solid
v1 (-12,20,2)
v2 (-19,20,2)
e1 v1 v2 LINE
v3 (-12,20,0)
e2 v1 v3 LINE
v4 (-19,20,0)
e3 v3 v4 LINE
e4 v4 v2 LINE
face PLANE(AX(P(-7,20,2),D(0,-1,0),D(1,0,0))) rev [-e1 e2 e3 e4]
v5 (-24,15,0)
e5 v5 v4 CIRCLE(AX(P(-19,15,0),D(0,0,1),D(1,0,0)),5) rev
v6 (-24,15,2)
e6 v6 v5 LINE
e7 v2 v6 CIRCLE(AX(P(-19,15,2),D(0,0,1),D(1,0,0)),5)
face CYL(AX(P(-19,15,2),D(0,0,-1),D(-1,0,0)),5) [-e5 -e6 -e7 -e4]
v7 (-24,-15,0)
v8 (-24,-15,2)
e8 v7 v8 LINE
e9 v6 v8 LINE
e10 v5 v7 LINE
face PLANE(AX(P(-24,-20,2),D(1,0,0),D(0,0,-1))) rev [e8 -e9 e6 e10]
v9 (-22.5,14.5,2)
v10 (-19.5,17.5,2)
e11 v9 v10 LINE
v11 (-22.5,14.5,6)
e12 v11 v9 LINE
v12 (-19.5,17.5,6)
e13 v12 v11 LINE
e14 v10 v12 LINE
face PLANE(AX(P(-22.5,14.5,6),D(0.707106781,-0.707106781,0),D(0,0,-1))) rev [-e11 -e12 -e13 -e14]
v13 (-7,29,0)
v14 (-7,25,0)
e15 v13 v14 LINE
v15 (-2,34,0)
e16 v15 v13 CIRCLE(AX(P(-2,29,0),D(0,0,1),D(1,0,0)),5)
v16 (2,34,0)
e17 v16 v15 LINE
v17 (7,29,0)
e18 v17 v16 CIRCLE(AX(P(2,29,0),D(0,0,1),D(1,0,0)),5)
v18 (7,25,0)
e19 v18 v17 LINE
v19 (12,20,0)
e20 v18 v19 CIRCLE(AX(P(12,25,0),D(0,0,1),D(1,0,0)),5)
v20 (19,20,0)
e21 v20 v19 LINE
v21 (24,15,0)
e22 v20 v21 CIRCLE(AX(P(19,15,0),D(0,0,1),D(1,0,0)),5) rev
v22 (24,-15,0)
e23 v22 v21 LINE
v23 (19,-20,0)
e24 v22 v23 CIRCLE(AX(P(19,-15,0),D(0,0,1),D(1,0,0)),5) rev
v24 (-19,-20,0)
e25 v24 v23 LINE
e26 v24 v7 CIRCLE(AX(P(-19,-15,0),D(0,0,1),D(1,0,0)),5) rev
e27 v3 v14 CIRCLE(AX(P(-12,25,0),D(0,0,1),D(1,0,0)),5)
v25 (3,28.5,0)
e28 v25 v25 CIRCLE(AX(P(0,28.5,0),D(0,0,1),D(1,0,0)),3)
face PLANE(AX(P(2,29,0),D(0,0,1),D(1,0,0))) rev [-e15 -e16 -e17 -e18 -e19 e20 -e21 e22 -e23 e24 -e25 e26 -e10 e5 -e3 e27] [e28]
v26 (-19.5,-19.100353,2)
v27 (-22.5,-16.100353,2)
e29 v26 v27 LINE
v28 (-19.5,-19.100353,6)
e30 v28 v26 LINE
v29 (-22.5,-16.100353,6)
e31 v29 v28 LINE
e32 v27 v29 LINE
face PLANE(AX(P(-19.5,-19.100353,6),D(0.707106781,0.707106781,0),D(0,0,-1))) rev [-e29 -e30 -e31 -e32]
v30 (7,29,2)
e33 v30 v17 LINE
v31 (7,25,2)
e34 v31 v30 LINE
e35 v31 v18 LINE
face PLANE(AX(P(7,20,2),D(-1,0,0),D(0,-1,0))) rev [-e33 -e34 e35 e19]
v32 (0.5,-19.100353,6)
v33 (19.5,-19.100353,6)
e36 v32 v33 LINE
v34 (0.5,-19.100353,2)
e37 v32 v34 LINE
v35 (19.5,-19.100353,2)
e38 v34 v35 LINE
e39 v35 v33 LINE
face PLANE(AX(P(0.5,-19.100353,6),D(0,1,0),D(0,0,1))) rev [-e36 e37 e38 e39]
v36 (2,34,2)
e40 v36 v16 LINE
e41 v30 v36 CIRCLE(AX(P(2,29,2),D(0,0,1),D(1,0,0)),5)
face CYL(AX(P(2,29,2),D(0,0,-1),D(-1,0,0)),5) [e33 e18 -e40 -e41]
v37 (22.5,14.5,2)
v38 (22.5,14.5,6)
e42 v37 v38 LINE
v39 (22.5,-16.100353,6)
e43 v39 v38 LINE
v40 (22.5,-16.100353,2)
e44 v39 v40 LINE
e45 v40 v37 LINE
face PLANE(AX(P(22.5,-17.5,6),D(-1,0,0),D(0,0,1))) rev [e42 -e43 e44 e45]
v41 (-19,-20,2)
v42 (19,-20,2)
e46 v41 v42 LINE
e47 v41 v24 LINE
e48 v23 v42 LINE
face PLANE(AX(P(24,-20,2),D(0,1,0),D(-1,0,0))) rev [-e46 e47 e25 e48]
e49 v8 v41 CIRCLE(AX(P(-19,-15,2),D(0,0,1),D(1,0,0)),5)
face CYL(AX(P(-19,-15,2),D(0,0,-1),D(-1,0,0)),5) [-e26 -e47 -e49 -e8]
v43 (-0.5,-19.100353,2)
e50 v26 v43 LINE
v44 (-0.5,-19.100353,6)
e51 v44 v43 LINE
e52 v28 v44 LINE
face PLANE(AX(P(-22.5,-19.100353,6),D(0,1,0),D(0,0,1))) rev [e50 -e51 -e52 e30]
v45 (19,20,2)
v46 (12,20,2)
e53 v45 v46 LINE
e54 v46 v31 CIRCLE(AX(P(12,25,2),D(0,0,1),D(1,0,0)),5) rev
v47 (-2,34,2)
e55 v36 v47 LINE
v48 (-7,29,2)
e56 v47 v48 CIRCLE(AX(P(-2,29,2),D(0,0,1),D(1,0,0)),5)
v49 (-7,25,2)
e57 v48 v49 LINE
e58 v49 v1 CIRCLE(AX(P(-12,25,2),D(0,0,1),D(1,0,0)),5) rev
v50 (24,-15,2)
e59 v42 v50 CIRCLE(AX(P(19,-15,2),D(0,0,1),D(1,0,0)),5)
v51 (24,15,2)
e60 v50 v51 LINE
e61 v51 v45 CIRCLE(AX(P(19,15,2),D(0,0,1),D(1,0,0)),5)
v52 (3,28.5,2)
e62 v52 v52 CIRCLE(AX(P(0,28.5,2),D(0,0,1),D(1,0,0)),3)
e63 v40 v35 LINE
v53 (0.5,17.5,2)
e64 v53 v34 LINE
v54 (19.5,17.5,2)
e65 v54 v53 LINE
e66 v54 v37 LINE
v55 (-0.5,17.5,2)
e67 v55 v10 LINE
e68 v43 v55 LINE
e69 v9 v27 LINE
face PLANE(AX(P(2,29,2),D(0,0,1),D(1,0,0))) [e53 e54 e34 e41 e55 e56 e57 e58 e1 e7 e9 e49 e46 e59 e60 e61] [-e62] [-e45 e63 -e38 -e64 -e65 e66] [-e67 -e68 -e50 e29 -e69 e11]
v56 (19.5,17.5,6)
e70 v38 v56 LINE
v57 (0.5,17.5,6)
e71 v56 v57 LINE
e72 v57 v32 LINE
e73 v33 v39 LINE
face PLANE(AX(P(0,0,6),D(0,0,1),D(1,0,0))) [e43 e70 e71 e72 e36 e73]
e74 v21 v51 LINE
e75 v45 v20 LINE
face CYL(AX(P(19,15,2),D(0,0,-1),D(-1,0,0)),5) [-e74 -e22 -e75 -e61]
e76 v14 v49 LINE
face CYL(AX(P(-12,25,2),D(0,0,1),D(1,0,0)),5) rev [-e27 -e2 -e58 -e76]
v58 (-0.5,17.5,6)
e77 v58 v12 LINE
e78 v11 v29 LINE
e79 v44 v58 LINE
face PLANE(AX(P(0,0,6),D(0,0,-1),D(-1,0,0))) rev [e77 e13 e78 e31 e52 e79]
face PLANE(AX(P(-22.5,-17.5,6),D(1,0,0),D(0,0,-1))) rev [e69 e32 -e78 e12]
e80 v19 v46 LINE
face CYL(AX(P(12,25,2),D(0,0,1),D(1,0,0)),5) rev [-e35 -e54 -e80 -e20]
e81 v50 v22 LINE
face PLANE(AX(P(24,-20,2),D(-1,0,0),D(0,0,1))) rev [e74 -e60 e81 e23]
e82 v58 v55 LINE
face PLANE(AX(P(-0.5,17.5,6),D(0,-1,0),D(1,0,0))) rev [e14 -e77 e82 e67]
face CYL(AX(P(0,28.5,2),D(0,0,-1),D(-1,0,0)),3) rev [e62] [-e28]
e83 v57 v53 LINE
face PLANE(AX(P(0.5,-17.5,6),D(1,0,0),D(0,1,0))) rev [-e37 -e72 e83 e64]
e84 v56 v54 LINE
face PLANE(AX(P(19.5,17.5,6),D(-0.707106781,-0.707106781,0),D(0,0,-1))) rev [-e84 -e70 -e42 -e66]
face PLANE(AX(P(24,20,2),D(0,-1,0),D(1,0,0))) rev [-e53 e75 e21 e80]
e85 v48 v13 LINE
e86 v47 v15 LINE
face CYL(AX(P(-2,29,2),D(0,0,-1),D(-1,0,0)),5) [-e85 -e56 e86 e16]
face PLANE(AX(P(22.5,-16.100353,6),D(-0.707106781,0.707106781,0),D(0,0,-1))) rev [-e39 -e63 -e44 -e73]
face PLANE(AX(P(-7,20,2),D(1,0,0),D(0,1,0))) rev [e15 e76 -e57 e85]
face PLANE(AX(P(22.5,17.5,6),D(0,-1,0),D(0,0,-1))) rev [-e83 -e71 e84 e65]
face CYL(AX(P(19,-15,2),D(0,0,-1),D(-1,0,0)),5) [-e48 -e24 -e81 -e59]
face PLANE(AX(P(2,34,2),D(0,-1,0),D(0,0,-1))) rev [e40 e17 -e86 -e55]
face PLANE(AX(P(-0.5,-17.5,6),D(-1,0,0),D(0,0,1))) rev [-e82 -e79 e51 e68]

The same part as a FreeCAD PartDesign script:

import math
import FreeCAD as App
import Part
import Sketcher

V = App.Vector
Q = App.Units.Quantity


def edges_at(feature, points):
    """Names of the edges that pass closest to the given points."""
    edges = feature.Shape.Edges
    near = lambda p: min(range(len(edges)), key=lambda i: edges[i].distToShape(Part.Vertex(*p))[0])
    return sorted({f"Edge{near(p) + 1}" for p in points})


def add_polygon(sketch, points):
    """Adds a closed chain of lines whose ends are joined by coincident constraints."""
    first, n = sketch.GeometryCount, len(points)
    for a, b in zip(points, points[1:] + points[:1]):
        sketch.addGeometry(Part.LineSegment(App.Vector(*a, 0), App.Vector(*b, 0)), False)
    for i in range(n):
        sketch.addConstraint(Sketcher.Constraint("Coincident", first + i, 2, first + (i + 1) % n, 1))

doc = App.newDocument("Part")
body = doc.addObject("PartDesign::Body", "Body")

# Sketch on XY plane
sketch1 = doc.addObject("Sketcher::SketchObject", "Sketch")
body.addObject(sketch1)
sketch1.AttachmentSupport = (doc.XY_Plane, [""])
sketch1.MapMode = "FlatFace"
sketch1.addGeometry([
    Part.LineSegment(V(-24, -20, 0), V(24, -20, 0)),  # 0
    Part.LineSegment(V(24, -20, 0), V(24, 20, 0)),  # 1
    Part.LineSegment(V(24, 20, 0), V(7, 20, 0)),  # 2
    Part.LineSegment(V(7, 20, 0), V(7, 29, 0)),  # 3
    Part.ArcOfCircle(Part.Circle(V(2, 29, 0), V(0, 0, 1), 5), math.radians(0), math.radians(90)),  # 4
    Part.LineSegment(V(2, 34, 0), V(-2, 34, 0)),  # 5
    Part.ArcOfCircle(Part.Circle(V(-2, 29, 0), V(0, 0, 1), 5), math.radians(90), math.radians(180)),  # 6
    Part.LineSegment(V(-7, 29, 0), V(-7, 20, 0)),  # 7
    Part.LineSegment(V(-7, 20, 0), V(-24, 20, 0)),  # 8
    Part.LineSegment(V(-24, 20, 0), V(-24, -20, 0)),  # 9
    Part.Circle(V(0, 28.5, 0), V(0, 0, 1), 3),  # 10
], False)
sketch1.addConstraint([
    Sketcher.Constraint("Coincident", 0, 2, 1, 1),
    Sketcher.Constraint("Coincident", 1, 2, 2, 1),
    Sketcher.Constraint("Coincident", 2, 2, 3, 1),
    Sketcher.Constraint("Tangent", 3, 2, 4, 1),
    Sketcher.Constraint("Tangent", 4, 2, 5, 1),
    Sketcher.Constraint("Tangent", 5, 2, 6, 1),
    Sketcher.Constraint("Tangent", 6, 2, 7, 1),
    Sketcher.Constraint("Coincident", 7, 2, 8, 1),
    Sketcher.Constraint("Coincident", 8, 2, 9, 1),
    Sketcher.Constraint("Coincident", 9, 2, 0, 1),
    Sketcher.Constraint("Horizontal", 0),
    Sketcher.Constraint("Vertical", 1),
    Sketcher.Constraint("Horizontal", 2),
    Sketcher.Constraint("Vertical", 3),
    Sketcher.Constraint("Horizontal", 5),
    Sketcher.Constraint("Vertical", 7),
    Sketcher.Constraint("Horizontal", 8),
    Sketcher.Constraint("Vertical", 9),
    Sketcher.Constraint("Equal", 4, 6),
    Sketcher.Constraint("Symmetric", 0, 2, 8, 2, -1, 1),
    Sketcher.Constraint("Symmetric", 2, 2, 7, 2, -2),
    Sketcher.Constraint("PointOnObject", 10, 3, -2),
    Sketcher.Constraint("Diameter", 10, Q("6 mm")),
    Sketcher.Constraint("Radius", 4, Q("5 mm")),
    Sketcher.Constraint("DistanceX", 0, 1, 0, 2, Q("48 mm")),
    Sketcher.Constraint("DistanceX", 2, 2, 2, 1, Q("17 mm")),
    Sketcher.Constraint("DistanceY", 1, 1, 1, 2, Q("40 mm")),
    Sketcher.Constraint("DistanceY", 3, 1, 3, 2, Q("9 mm")),
    Sketcher.Constraint("DistanceY", -1, 1, 10, 3, Q("28.5 mm")),
])
pad1 = doc.addObject("PartDesign::Pad", "Pad")
body.addObject(pad1)
pad1.Profile = sketch1
pad1.Length = 2

# Sketch on XY plane
sketch2 = doc.addObject("Sketcher::SketchObject", "Sketch001")
body.addObject(sketch2)
sketch2.AttachmentSupport = (doc.XY_Plane, [""])
sketch2.MapMode = "FlatFace"
sketch2.AttachmentOffset = App.Placement(V(0, 0, 2), App.Rotation())
add_polygon(sketch2, [(-22.5, -19.100353), (-0.5, -19.100353), (-0.5, 17.5), (-22.5, 17.5)])  # lines 0-3
add_polygon(sketch2, [(22.5, 17.5), (0.5, 17.5), (0.5, -19.100353), (22.5, -19.100353)])  # lines 4-7
sketch2.addConstraint([
    Sketcher.Constraint("Horizontal", 0),
    Sketcher.Constraint("Vertical", 1),
    Sketcher.Constraint("Horizontal", 2),
    Sketcher.Constraint("Vertical", 3),
    Sketcher.Constraint("Horizontal", 4),
    Sketcher.Constraint("Vertical", 5),
    Sketcher.Constraint("Horizontal", 6),
    Sketcher.Constraint("Vertical", 7),
    Sketcher.Constraint("Symmetric", 1, 2, 4, 2, -2),
    Sketcher.Constraint("Symmetric", 3, 2, 6, 2, -2),
    Sketcher.Constraint("DistanceX", 0, 1, 0, 2, Q("22 mm")),
    Sketcher.Constraint("DistanceX", 1, 2, 4, 2, Q("1 mm")),
    Sketcher.Constraint("DistanceY", -1, 1, 1, 2, Q("17.5 mm")),
    Sketcher.Constraint("DistanceY", 1, 1, 1, 2, Q("36.600353 mm")),
])
pad2 = doc.addObject("PartDesign::Pad", "Pad001")
body.addObject(pad2)
pad2.Profile = sketch2
pad2.Length = 4
doc.recompute()

chamfer = doc.addObject("PartDesign::Chamfer", "Chamfer")
body.addObject(chamfer)
chamfer.Base = (pad2, edges_at(pad2, [
    (-22.5, 17.5, 4),
    (-22.5, -19.1, 4),
    (22.5, -19.1, 4),
    (22.5, 17.5, 4),
]))
chamfer.Size = 3
doc.recompute()

fillet = doc.addObject("PartDesign::Fillet", "Fillet")
body.addObject(fillet)
fillet.Base = (chamfer, edges_at(chamfer, [
    (-7, 20, 1),
    (7, 20, 1),
    (24, 20, 1),
    (24, -20, 1),
    (-24, -20, 1),
    (-24, 20, 1),
]))
fillet.Radius = 5

doc.recompute()
